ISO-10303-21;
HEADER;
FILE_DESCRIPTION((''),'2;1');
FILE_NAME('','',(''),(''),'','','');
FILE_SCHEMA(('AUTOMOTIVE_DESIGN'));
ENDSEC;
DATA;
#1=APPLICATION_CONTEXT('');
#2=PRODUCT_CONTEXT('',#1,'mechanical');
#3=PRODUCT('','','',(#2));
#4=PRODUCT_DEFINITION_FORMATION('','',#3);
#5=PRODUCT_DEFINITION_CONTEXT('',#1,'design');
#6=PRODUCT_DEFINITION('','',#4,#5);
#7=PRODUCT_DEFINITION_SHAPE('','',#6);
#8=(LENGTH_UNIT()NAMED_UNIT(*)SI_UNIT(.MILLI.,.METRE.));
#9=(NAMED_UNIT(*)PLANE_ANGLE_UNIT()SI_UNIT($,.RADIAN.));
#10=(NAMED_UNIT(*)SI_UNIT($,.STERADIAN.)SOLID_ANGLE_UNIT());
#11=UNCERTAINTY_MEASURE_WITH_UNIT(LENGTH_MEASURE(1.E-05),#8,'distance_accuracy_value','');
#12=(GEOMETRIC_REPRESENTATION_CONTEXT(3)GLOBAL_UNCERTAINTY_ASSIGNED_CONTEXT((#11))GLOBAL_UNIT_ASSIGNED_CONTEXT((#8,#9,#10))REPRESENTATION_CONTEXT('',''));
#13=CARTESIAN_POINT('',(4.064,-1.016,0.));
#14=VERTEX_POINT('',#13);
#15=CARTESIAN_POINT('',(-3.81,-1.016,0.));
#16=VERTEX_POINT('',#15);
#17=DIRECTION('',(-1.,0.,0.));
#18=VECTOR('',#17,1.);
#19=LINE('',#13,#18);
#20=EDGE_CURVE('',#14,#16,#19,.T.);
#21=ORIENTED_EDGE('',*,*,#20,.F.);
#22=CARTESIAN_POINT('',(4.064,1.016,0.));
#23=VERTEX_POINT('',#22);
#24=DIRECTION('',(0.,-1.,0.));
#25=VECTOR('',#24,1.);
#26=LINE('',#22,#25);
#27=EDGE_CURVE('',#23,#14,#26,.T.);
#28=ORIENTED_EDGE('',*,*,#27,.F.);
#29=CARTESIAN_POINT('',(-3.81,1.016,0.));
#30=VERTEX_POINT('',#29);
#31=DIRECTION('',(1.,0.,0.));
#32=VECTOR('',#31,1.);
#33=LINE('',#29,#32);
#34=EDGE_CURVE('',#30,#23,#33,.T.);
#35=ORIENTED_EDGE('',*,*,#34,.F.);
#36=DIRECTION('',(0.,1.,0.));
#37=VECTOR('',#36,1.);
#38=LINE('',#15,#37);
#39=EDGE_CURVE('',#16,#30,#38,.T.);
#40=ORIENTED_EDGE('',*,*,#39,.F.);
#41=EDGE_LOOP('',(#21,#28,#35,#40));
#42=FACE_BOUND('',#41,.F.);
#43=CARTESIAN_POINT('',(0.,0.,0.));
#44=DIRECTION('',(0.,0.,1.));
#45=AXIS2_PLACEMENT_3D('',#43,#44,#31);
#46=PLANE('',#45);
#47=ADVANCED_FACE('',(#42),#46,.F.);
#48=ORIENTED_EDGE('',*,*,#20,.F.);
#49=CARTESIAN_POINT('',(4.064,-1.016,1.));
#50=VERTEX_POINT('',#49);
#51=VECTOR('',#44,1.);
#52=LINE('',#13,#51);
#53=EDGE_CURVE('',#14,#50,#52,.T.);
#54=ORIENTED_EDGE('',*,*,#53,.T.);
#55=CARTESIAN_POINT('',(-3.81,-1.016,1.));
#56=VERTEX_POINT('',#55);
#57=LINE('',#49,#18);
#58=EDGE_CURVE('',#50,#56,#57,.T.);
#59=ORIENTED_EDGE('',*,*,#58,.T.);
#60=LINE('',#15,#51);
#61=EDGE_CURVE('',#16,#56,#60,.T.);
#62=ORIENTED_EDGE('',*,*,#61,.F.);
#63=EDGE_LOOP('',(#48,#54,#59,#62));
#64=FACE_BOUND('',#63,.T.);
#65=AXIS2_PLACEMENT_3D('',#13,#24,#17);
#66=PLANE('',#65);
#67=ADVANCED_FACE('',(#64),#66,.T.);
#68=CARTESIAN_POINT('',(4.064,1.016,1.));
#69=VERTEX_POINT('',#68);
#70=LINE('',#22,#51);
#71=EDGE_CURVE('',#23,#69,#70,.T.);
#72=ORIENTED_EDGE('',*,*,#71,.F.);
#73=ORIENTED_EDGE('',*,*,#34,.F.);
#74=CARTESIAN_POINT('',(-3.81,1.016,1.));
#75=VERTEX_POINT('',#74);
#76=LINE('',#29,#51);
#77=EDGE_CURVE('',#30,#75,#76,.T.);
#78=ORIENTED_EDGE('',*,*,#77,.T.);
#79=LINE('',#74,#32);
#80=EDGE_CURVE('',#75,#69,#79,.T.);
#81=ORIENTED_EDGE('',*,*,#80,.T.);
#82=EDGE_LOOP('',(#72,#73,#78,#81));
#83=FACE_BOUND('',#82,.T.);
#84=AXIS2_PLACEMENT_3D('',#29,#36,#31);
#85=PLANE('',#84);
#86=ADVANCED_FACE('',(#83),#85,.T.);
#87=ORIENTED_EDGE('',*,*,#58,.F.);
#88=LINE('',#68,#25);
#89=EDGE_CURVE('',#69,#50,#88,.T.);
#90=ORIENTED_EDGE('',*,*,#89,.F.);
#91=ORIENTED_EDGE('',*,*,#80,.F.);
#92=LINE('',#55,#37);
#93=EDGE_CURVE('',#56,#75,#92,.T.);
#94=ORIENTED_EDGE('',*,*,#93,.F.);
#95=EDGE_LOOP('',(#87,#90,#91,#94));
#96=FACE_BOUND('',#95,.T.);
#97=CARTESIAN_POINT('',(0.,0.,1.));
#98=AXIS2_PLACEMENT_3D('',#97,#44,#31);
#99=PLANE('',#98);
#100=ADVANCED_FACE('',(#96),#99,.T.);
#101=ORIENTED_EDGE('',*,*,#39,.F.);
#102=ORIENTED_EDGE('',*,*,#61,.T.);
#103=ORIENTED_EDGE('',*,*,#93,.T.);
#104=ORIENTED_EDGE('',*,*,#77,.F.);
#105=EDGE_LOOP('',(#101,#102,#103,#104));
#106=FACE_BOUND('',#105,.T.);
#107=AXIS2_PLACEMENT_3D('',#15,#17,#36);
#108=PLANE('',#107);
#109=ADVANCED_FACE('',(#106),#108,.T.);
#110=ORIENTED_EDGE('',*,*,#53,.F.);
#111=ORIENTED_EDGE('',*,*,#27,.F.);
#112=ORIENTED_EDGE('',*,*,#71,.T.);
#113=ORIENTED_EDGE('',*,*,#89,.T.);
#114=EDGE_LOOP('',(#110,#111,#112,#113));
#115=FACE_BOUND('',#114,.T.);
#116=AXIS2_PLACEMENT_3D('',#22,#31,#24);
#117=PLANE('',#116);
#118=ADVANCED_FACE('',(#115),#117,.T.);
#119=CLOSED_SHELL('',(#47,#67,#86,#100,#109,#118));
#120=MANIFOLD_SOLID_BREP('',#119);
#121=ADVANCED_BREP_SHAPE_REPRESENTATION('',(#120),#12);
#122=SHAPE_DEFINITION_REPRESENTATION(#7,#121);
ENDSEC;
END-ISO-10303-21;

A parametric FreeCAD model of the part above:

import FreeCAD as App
import Part
import Sketcher

V = App.Vector
Q = App.Units.Quantity

doc = App.newDocument("Part")
body = doc.addObject("PartDesign::Body", "Body")

sketch1 = body.newObject("Sketcher::SketchObject", "Sketch")
sketch1.AttachmentSupport = (doc.getObject("XY_Plane"), [""])
sketch1.MapMode = "FlatFace"
sketch1.addGeometry([
    Part.LineSegment(V(4.064, 1.016, 0), V(-3.81, 1.016, 0)),
    Part.LineSegment(V(-3.81, 1.016, 0), V(-3.81, -1.016, 0)),
    Part.LineSegment(V(-3.81, -1.016, 0), V(4.064, -1.016, 0)),
    Part.LineSegment(V(4.064, -1.016, 0), V(4.064, 1.016, 0)),
], False)
sketch1.addConstraint([
    Sketcher.Constraint("Coincident", 0, 2, 1, 1),
    Sketcher.Constraint("Coincident", 1, 2, 2, 1),
    Sketcher.Constraint("Coincident", 2, 2, 3, 1),
    Sketcher.Constraint("Coincident", 3, 2, 0, 1),
    Sketcher.Constraint("Horizontal", 0),
    Sketcher.Constraint("Vertical", 1),
    Sketcher.Constraint("Horizontal", 2),
    Sketcher.Constraint("Vertical", 3),
    Sketcher.Constraint("DistanceX", 0, 2, 0, 1, Q("0.31 in")),
    Sketcher.Constraint("DistanceY", 1, 2, 1, 1, Q("0.08 in")),
    Sketcher.Constraint("DistanceX", 0, 2, -1, 1, Q("0.15 in")),
    Sketcher.Constraint("DistanceY", -1, 1, 0, 2, Q("0.04 in")),
])
pad1 = body.newObject("PartDesign::Pad", "Pad")
pad1.Profile = sketch1
pad1.Length = 1

doc.recompute()
